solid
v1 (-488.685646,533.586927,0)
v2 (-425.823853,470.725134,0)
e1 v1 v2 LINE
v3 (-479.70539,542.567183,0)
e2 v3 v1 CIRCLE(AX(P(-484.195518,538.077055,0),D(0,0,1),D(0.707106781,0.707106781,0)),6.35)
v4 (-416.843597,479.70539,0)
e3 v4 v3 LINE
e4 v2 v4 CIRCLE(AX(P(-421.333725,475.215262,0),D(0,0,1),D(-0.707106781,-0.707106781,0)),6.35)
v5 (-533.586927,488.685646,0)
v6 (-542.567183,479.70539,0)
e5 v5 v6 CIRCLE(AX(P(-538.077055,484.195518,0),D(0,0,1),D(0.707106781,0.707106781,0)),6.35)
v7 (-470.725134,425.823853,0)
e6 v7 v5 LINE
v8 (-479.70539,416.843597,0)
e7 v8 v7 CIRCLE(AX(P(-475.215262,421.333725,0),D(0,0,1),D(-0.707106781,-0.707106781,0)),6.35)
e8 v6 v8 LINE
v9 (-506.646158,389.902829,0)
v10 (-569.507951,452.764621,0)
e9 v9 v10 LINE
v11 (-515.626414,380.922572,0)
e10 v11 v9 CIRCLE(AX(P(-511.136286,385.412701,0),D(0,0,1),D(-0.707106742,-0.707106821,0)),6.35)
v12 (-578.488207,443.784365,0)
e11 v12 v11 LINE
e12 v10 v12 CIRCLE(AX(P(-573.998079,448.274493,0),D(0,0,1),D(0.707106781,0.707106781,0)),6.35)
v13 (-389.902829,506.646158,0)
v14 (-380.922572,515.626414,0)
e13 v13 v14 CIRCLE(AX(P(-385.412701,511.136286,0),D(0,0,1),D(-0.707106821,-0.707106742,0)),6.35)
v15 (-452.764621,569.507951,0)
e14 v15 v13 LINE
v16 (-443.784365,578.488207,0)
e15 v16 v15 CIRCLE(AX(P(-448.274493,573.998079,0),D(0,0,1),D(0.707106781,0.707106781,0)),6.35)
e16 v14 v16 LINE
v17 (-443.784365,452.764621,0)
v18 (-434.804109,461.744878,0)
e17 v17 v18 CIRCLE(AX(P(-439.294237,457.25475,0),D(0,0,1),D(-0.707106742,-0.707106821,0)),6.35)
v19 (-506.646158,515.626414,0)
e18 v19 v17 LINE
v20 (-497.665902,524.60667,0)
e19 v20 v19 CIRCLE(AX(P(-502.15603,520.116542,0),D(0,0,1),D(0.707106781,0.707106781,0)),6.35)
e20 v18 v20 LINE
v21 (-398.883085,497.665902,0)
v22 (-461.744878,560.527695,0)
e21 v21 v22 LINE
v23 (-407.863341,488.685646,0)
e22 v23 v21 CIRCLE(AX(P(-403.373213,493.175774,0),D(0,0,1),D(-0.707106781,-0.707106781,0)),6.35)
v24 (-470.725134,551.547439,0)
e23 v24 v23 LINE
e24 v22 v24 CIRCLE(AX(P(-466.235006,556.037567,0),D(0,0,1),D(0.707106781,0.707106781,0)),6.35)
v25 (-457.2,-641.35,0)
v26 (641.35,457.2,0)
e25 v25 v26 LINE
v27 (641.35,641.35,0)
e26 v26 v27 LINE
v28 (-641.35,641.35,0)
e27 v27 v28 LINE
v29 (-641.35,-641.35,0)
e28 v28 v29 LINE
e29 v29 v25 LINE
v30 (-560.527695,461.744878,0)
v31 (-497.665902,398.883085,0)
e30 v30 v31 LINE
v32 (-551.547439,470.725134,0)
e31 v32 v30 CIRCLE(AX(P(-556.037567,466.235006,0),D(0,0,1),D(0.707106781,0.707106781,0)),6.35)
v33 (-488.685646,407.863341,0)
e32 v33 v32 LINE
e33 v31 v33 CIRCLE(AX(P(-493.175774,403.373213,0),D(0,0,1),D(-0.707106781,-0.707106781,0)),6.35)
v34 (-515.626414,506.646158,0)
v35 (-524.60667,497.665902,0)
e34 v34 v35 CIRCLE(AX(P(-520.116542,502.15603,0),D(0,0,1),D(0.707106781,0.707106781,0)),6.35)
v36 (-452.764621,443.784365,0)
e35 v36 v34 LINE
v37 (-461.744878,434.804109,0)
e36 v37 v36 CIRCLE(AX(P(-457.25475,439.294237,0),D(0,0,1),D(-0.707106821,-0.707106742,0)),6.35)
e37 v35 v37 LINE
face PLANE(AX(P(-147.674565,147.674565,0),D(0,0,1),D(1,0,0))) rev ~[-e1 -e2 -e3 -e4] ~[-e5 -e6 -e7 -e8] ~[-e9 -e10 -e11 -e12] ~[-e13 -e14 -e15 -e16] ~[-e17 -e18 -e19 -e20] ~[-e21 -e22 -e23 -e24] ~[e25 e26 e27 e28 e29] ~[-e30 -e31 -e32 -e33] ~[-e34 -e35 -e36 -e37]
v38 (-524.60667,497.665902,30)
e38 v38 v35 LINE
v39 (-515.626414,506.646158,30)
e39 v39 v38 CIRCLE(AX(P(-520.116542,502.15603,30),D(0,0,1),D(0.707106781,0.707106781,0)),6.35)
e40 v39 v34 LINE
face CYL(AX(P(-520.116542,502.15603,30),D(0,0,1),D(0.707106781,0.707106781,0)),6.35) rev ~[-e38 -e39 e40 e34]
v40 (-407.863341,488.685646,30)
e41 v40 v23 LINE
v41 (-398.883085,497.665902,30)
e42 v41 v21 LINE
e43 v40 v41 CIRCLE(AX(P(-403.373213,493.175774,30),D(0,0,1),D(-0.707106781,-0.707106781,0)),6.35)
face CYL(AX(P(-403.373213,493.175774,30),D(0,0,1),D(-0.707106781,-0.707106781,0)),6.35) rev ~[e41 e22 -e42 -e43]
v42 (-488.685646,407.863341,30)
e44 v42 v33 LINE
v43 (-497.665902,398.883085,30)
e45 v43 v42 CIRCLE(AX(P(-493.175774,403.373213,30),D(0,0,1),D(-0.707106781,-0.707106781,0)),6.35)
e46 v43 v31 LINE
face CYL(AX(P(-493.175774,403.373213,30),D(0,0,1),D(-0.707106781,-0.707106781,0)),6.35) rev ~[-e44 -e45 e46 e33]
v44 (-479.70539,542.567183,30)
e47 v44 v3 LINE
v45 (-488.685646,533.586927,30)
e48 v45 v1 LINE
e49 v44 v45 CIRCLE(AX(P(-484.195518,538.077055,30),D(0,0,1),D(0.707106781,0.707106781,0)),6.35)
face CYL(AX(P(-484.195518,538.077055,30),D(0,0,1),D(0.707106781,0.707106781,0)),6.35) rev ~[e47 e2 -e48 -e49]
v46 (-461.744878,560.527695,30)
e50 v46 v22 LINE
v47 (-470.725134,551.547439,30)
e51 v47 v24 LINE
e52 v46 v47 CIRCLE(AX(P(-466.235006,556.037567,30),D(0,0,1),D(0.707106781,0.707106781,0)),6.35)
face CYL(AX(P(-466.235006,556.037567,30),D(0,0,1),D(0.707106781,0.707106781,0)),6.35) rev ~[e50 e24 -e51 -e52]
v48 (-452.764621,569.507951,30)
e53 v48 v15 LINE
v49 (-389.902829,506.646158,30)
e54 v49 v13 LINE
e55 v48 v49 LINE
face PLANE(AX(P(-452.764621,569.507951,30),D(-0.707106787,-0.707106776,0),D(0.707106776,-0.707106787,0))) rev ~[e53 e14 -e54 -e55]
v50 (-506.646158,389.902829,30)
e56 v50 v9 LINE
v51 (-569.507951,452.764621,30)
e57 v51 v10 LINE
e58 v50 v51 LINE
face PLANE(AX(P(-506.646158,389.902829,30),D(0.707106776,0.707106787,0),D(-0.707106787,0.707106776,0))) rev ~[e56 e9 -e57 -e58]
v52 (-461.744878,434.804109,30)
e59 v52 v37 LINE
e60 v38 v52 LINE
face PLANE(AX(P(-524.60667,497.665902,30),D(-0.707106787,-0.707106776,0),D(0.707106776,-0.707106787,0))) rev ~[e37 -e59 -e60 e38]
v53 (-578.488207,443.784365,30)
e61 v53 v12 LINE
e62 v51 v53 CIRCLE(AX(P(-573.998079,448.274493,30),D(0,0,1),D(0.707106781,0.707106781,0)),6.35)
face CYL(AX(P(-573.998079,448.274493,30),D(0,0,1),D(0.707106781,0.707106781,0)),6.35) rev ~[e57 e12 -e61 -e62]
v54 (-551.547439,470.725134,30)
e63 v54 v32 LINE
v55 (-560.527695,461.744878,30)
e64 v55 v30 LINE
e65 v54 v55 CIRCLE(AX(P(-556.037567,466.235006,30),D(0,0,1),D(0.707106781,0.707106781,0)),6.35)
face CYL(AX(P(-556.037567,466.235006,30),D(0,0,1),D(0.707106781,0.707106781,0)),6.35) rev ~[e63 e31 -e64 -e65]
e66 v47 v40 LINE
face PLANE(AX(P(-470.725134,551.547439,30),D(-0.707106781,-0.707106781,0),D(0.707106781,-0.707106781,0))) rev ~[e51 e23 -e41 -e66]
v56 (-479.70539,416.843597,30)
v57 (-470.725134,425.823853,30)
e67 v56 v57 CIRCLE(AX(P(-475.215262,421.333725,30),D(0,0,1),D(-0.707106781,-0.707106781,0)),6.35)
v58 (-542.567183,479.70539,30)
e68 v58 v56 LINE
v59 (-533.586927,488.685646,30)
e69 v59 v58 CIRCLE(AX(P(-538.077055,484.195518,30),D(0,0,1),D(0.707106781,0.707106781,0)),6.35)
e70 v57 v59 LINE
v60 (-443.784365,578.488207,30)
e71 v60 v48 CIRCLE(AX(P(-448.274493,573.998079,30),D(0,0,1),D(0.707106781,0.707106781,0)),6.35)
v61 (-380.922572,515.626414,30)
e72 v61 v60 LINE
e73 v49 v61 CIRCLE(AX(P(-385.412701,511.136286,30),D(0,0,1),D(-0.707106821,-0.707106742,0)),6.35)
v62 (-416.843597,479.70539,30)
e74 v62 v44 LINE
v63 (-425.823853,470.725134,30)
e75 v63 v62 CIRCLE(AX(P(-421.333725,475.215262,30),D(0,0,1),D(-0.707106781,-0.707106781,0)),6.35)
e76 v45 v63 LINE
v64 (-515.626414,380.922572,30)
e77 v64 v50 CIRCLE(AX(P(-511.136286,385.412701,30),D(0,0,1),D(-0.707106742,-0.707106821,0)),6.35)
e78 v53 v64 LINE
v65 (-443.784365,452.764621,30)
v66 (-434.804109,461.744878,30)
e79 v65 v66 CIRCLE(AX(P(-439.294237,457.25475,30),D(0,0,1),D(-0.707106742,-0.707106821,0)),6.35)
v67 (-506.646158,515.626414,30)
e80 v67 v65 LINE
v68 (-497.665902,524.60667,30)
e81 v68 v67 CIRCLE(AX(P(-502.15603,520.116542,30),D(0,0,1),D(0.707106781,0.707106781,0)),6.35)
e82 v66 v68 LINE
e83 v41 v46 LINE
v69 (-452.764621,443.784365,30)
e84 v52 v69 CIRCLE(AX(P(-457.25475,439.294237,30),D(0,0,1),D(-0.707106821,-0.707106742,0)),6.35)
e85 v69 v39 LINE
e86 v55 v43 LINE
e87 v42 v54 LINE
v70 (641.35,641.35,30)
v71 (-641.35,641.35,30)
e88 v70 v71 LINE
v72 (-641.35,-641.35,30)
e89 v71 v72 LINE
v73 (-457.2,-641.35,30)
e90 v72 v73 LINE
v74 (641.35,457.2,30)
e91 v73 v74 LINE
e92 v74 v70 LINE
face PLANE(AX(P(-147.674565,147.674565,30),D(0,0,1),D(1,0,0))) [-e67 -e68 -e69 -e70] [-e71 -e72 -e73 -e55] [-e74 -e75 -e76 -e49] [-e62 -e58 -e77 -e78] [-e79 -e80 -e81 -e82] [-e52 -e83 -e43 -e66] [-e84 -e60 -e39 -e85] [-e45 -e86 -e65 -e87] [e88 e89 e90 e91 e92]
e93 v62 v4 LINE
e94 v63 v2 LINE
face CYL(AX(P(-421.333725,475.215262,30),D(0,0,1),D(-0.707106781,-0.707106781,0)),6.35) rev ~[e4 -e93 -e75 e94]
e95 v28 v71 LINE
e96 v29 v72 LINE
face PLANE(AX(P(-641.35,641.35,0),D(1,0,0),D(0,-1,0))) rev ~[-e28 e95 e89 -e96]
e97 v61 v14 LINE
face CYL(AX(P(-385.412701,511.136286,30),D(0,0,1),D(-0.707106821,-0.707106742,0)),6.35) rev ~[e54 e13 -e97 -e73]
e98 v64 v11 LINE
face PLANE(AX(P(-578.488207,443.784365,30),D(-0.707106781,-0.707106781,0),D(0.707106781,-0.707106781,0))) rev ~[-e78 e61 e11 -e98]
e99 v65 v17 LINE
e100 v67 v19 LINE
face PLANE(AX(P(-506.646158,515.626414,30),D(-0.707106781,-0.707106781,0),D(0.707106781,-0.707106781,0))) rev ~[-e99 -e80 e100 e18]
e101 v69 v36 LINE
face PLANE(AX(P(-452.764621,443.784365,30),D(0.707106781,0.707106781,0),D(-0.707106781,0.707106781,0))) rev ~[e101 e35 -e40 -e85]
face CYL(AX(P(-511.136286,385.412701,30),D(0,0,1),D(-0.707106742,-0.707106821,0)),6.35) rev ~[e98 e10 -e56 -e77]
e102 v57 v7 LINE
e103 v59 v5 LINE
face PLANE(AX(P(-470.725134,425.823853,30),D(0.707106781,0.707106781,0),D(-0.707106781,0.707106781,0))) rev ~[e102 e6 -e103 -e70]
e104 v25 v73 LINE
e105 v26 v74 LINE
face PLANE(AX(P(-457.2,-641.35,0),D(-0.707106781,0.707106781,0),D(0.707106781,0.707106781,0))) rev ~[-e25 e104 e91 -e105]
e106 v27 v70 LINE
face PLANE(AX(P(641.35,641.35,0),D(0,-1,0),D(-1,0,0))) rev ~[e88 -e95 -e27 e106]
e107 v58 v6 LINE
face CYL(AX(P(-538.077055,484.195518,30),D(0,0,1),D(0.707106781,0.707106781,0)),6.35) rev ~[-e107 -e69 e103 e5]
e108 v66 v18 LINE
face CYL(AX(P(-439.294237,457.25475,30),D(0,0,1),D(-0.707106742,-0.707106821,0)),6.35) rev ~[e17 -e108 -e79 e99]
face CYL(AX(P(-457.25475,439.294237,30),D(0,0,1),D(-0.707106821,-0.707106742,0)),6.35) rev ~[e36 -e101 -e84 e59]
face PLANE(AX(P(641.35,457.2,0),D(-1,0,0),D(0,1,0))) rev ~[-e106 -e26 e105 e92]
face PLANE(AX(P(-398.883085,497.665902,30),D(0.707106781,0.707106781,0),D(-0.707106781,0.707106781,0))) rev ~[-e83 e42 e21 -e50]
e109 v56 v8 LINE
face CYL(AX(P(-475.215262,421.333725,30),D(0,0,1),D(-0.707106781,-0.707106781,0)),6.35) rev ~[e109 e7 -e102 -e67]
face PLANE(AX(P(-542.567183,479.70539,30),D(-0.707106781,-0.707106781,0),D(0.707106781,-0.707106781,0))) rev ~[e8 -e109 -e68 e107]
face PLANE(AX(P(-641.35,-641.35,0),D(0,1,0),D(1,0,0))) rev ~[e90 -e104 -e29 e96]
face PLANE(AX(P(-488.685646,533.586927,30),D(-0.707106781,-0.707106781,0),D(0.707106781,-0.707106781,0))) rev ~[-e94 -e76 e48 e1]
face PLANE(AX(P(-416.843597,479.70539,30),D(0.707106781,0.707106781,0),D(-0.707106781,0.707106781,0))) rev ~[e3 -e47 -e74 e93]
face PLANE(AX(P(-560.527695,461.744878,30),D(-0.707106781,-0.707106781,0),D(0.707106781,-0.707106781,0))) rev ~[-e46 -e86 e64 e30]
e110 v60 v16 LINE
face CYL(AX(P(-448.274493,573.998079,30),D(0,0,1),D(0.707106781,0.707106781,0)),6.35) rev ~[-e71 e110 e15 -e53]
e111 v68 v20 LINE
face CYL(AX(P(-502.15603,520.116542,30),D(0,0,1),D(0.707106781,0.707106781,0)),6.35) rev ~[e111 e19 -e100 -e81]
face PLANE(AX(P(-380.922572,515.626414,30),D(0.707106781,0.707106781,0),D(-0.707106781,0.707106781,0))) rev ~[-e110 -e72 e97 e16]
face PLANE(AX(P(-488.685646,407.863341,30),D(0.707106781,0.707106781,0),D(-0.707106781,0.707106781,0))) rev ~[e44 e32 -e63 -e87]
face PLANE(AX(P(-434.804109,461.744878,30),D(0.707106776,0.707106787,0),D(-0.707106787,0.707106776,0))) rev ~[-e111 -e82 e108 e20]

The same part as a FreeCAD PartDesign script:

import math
import FreeCAD as App
import Part
import Sketcher

V = App.Vector
Q = App.Units.Quantity


def add_polygon(sketch, points):
    """Adds a closed chain of lines whose ends are joined by coincident constraints."""
    first, n = sketch.GeometryCount, len(points)
    for a, b in zip(points, points[1:] + points[:1]):
        sketch.addGeometry(Part.LineSegment(App.Vector(*a, 0), App.Vector(*b, 0)), False)
    for i in range(n):
        sketch.addConstraint(Sketcher.Constraint("Coincident", first + i, 2, first + (i + 1) % n, 1))

doc = App.newDocument("Part")
body = doc.addObject("PartDesign::Body", "Body")

sketch1 = body.newObject("Sketcher::SketchObject", "Sketch")
sketch1.AttachmentSupport = (doc.getObject("XY_Plane"), [""])
sketch1.MapMode = "FlatFace"
add_polygon(sketch1, [(641, 641), (-641, 641), (-641, -641), (-457, -641), (641, 457)])
sketch1.addConstraint(Sketcher.Constraint("Horizontal", 0))
sketch1.addConstraint(Sketcher.Constraint("Vertical", 1))
sketch1.addConstraint(Sketcher.Constraint("Horizontal", 2))
sketch1.addConstraint(Sketcher.Constraint("Vertical", 4))
sketch1.addConstraint(Sketcher.Constraint("Symmetric", 1, 2, 4, 2, -1, 1))
sketch1.addConstraint(Sketcher.Constraint("Equal", 0, 1))
sketch1.addConstraint(Sketcher.Constraint("Equal", 2, 4))
sketch1.addConstraint(Sketcher.Constraint("DistanceX", 0, 2, 0, 1, Q("50.5 in")))
sketch1.addConstraint(Sketcher.Constraint("DistanceX", 2, 2, -1, 1, Q("18 in")))
pad1 = body.newObject("PartDesign::Pad", "Pad")
pad1.Profile = sketch1
pad1.Length = 30

sketch2 = body.newObject("Sketcher::SketchObject", "Sketch001")
sketch2.AttachmentSupport = (doc.getObject("XY_Plane"), [""])
sketch2.MapMode = "FlatFace"
sketch2.AttachmentOffset = App.Placement(V(0, 0, 30), App.Rotation())
sketch2.addGeometry(Part.LineSegment(V(-507, 390, 0), V(-570, 453, 0)), False)
sketch2.addGeometry(Part.ArcOfCircle(Part.Circle(V(-574, 448, 0), V(0, 0, 1), 6), math.radians(45), math.radians(225)), False)
sketch2.addGeometry(Part.LineSegment(V(-578, 444, 0), V(-516, 381, 0)), False)
sketch2.addGeometry(Part.ArcOfCircle(Part.Circle(V(-511, 385, 0), V(0, 0, 1), 6), math.radians(-135), math.radians(45)), False)
sketch2.addGeometry(Part.LineSegment(V(-489, 408, 0), V(-552, 471, 0)), False)
sketch2.addGeometry(Part.ArcOfCircle(Part.Circle(V(-556, 466, 0), V(0, 0, 1), 6), math.radians(45), math.radians(225)), False)
sketch2.addGeometry(Part.LineSegment(V(-561, 462, 0), V(-498, 399, 0)), False)
sketch2.addGeometry(Part.ArcOfCircle(Part.Circle(V(-493, 403, 0), V(0, 0, 1), 6), math.radians(-135), math.radians(45)), False)
sketch2.addGeometry(Part.LineSegment(V(-543, 480, 0), V(-480, 417, 0)), False)
sketch2.addGeometry(Part.ArcOfCircle(Part.Circle(V(-475, 421, 0), V(0, 0, 1), 6), math.radians(-135), math.radians(45)), False)
sketch2.addGeometry(Part.LineSegment(V(-471, 426, 0), V(-534, 489, 0)), False)
sketch2.addGeometry(Part.ArcOfCircle(Part.Circle(V(-538, 484, 0), V(0, 0, 1), 6), math.radians(45), math.radians(225)), False)
sketch2.addGeometry(Part.LineSegment(V(-453, 444, 0), V(-516, 507, 0)), False)
sketch2.addGeometry(Part.ArcOfCircle(Part.Circle(V(-520, 502, 0), V(0, 0, 1), 6), math.radians(45), math.radians(225)), False)
sketch2.addGeometry(Part.LineSegment(V(-525, 498, 0), V(-462, 435, 0)), False)
sketch2.addGeometry(Part.ArcOfCircle(Part.Circle(V(-457, 439, 0), V(0, 0, 1), 6), math.radians(-135), math.radians(45)), False)
sketch2.addGeometry(Part.LineSegment(V(-507, 516, 0), V(-444, 453, 0)), False)
sketch2.addGeometry(Part.ArcOfCircle(Part.Circle(V(-439, 457, 0), V(0, 0, 1), 6), math.radians(-135), math.radians(45)), False)
sketch2.addGeometry(Part.LineSegment(V(-435, 462, 0), V(-498, 525, 0)), False)
sketch2.addGeometry(Part.ArcOfCircle(Part.Circle(V(-502, 520, 0), V(0, 0, 1), 6), math.radians(45), math.radians(225)), False)
sketch2.addGeometry(Part.LineSegment(V(-489, 534, 0), V(-426, 471, 0)), False)
sketch2.addGeometry(Part.ArcOfCircle(Part.Circle(V(-421, 475, 0), V(0, 0, 1), 6), math.radians(-135), math.radians(45)), False)
sketch2.addGeometry(Part.LineSegment(V(-417, 480, 0), V(-480, 543, 0)), False)
sketch2.addGeometry(Part.ArcOfCircle(Part.Circle(V(-484, 538, 0), V(0, 0, 1), 6), math.radians(45), math.radians(225)), False)
sketch2.addGeometry(Part.LineSegment(V(-471, 552, 0), V(-408, 489, 0)), False)
sketch2.addGeometry(Part.ArcOfCircle(Part.Circle(V(-403, 493, 0), V(0, 0, 1), 6), math.radians(-135), math.radians(45)), False)
sketch2.addGeometry(Part.LineSegment(V(-399, 498, 0), V(-462, 561, 0)), False)
sketch2.addGeometry(Part.ArcOfCircle(Part.Circle(V(-466, 556, 0), V(0, 0, 1), 6), math.radians(45), math.radians(225)), False)
sketch2.addGeometry(Part.LineSegment(V(-381, 516, 0), V(-444, 578, 0)), False)
sketch2.addGeometry(Part.ArcOfCircle(Part.Circle(V(-448, 574, 0), V(0, 0, 1), 6), math.radians(45), math.radians(225)), False)
sketch2.addGeometry(Part.LineSegment(V(-453, 570, 0), V(-390, 507, 0)), False)
sketch2.addGeometry(Part.ArcOfCircle(Part.Circle(V(-385, 511, 0), V(0, 0, 1), 6), math.radians(-135), math.radians(45)), False)
sketch2.addConstraint(Sketcher.Constraint("Tangent", 0, 2, 1, 1))
sketch2.addConstraint(Sketcher.Constraint("Tangent", 1, 2, 2, 1))
sketch2.addConstraint(Sketcher.Constraint("Tangent", 2, 2, 3, 1))
sketch2.addConstraint(Sketcher.Constraint("Tangent", 3, 2, 0, 1))
sketch2.addConstraint(Sketcher.Constraint("Tangent", 4, 2, 5, 1))
sketch2.addConstraint(Sketcher.Constraint("Tangent", 5, 2, 6, 1))
sketch2.addConstraint(Sketcher.Constraint("Tangent", 6, 2, 7, 1))
sketch2.addConstraint(Sketcher.Constraint("Tangent", 7, 2, 4, 1))
sketch2.addConstraint(Sketcher.Constraint("Tangent", 8, 2, 9, 1))
sketch2.addConstraint(Sketcher.Constraint("Tangent", 9, 2, 10, 1))
sketch2.addConstraint(Sketcher.Constraint("Tangent", 10, 2, 11, 1))
sketch2.addConstraint(Sketcher.Constraint("Tangent", 11, 2, 8, 1))
sketch2.addConstraint(Sketcher.Constraint("Tangent", 12, 2, 13, 1))
sketch2.addConstraint(Sketcher.Constraint("Tangent", 13, 2, 14, 1))
sketch2.addConstraint(Sketcher.Constraint("Tangent", 14, 2, 15, 1))
sketch2.addConstraint(Sketcher.Constraint("Tangent", 15, 2, 12, 1))
sketch2.addConstraint(Sketcher.Constraint("Tangent", 16, 2, 17, 1))
sketch2.addConstraint(Sketcher.Constraint("Tangent", 17, 2, 18, 1))
sketch2.addConstraint(Sketcher.Constraint("Tangent", 18, 2, 19, 1))
sketch2.addConstraint(Sketcher.Constraint("Tangent", 19, 2, 16, 1))
sketch2.addConstraint(Sketcher.Constraint("Tangent", 20, 2, 21, 1))
sketch2.addConstraint(Sketcher.Constraint("Tangent", 21, 2, 22, 1))
sketch2.addConstraint(Sketcher.Constraint("Tangent", 22, 2, 23, 1))
sketch2.addConstraint(Sketcher.Constraint("Tangent", 23, 2, 20, 1))
sketch2.addConstraint(Sketcher.Constraint("Tangent", 24, 2, 25, 1))
sketch2.addConstraint(Sketcher.Constraint("Tangent", 25, 2, 26, 1))
sketch2.addConstraint(Sketcher.Constraint("Tangent", 26, 2, 27, 1))
sketch2.addConstraint(Sketcher.Constraint("Tangent", 27, 2, 24, 1))
sketch2.addConstraint(Sketcher.Constraint("Tangent", 28, 2, 29, 1))
sketch2.addConstraint(Sketcher.Constraint("Tangent", 29, 2, 30, 1))
sketch2.addConstraint(Sketcher.Constraint("Tangent", 30, 2, 31, 1))
sketch2.addConstraint(Sketcher.Constraint("Tangent", 31, 2, 28, 1))
sketch2.addConstraint(Sketcher.Constraint("Equal", 1, 3))
sketch2.addConstraint(Sketcher.Constraint("Equal", 3, 5))
sketch2.addConstraint(Sketcher.Constraint("Equal", 5, 7))
sketch2.addConstraint(Sketcher.Constraint("Equal", 7, 9))
sketch2.addConstraint(Sketcher.Constraint("Equal", 9, 11))
sketch2.addConstraint(Sketcher.Constraint("Equal", 11, 13))
sketch2.addConstraint(Sketcher.Constraint("Equal", 13, 15))
sketch2.addConstraint(Sketcher.Constraint("Equal", 15, 17))
sketch2.addConstraint(Sketcher.Constraint("Equal", 17, 19))
sketch2.addConstraint(Sketcher.Constraint("Equal", 19, 21))
sketch2.addConstraint(Sketcher.Constraint("Equal", 21, 23))
sketch2.addConstraint(Sketcher.Constraint("Equal", 23, 25))
sketch2.addConstraint(Sketcher.Constraint("Equal", 25, 27))
sketch2.addConstraint(Sketcher.Constraint("Equal", 27, 29))
sketch2.addConstraint(Sketcher.Constraint("Equal", 29, 31))
sketch2.addConstraint(Sketcher.Constraint("Parallel", 2, 4))
sketch2.addConstraint(Sketcher.Constraint("Parallel", 6, 8))
sketch2.addConstraint(Sketcher.Constraint("Parallel", 10, 12))
sketch2.addConstraint(Sketcher.Constraint("Parallel", 14, 16))
sketch2.addConstraint(Sketcher.Constraint("Parallel", 18, 20))
sketch2.addConstraint(Sketcher.Constraint("Parallel", 22, 24))
sketch2.addConstraint(Sketcher.Constraint("Parallel", 26, 28))
sketch2.addConstraint(Sketcher.Constraint("Horizontal", 1, 2, 15, 2))
sketch2.addConstraint(Sketcher.Constraint("Horizontal", 0, 2, 16, 2))
sketch2.addConstraint(Sketcher.Constraint("Horizontal", 5, 2, 17, 2))
sketch2.addConstraint(Sketcher.Constraint("Horizontal", 4, 2, 20, 2))
sketch2.addConstraint(Sketcher.Constraint("Horizontal", 11, 2, 21, 2))
sketch2.addConstraint(Sketcher.Constraint("Horizontal", 10, 2, 24, 2))
sketch2.addConstraint(Sketcher.Constraint("Horizontal", 13, 2, 25, 2))
sketch2.addConstraint(Sketcher.Constraint("Horizontal", 12, 2, 30, 2))
sketch2.addConstraint(Sketcher.Constraint("Horizontal", 19, 2, 31, 2))
sketch2.addConstraint(Sketcher.Constraint("Vertical", 2, 2, 12, 2))
sketch2.addConstraint(Sketcher.Constraint("Vertical", 6, 2, 18, 2))
sketch2.addConstraint(Sketcher.Constraint("Vertical", 3, 2, 19, 2))
sketch2.addConstraint(Sketcher.Constraint("Vertical", 8, 2, 22, 2))
sketch2.addConstraint(Sketcher.Constraint("Vertical", 7, 2, 23, 2))
sketch2.addConstraint(Sketcher.Constraint("Vertical", 14, 2, 26, 2))
sketch2.addConstraint(Sketcher.Constraint("Vertical", 9, 2, 27, 2))
sketch2.addConstraint(Sketcher.Constraint("Vertical", 16, 2, 28, 2))
sketch2.addConstraint(Sketcher.Constraint("Equal", 2, 4))
sketch2.addConstraint(Sketcher.Constraint("Equal", 6, 8))
sketch2.addConstraint(Sketcher.Constraint("Equal", 10, 12))
sketch2.addConstraint(Sketcher.Constraint("Equal", 18, 20))
sketch2.addConstraint(Sketcher.Constraint("Equal", 22, 24))
sketch2.addConstraint(Sketcher.Constraint("Equal", 26, 28))
sketch2.addConstraint(Sketcher.Constraint("Radius", 1, Q("0.25 in")))
sketch2.addConstraint(Sketcher.Constraint("DistanceY", -1, 1, 3, 3, Q("385.412701 mm")))
sketch2.addConstraint(Sketcher.Constraint("DistanceX", 31, 3, -1, 1, Q("385.412701 mm")))
pocket1 = body.newObject("PartDesign::Pocket", "Pocket")
pocket1.Profile = sketch2
pocket1.Type = "ThroughAll"

doc.recompute()
